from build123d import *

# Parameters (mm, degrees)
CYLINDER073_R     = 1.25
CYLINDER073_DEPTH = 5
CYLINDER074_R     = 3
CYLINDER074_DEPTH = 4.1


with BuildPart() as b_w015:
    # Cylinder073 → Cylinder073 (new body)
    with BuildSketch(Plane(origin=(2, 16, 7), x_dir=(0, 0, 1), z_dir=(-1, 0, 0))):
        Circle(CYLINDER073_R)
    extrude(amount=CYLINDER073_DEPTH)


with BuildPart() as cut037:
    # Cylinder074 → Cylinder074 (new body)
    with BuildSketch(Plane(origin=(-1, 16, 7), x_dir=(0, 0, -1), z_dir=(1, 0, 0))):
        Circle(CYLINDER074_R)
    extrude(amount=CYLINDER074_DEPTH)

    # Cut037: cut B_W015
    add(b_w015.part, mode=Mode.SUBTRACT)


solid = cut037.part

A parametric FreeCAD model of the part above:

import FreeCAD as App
import Part
import Sketcher
from FreeCAD import Vector

doc = App.newDocument("Part")
body = doc.addObject("PartDesign::Body", "Body")

sketch1 = body.newObject("Sketcher::SketchObject", "Sketch")
sketch1.AttachmentSupport = (doc.getObject("YZ_Plane"), [""])
sketch1.MapMode = "FlatFace"
sketch1.AttachmentOffset = App.Placement(Vector(0, 0, 2), App.Rotation())
sketch1.addGeometry(Part.Circle(Vector(16, 7, 0), Vector(0, 0, 1), 1.25), False)
sketch1.addConstraint([
    Sketcher.Constraint("Diameter", 0, 2.5),
    Sketcher.Constraint("DistanceX", -1, 1, 0, 3, 16.0),
    Sketcher.Constraint("DistanceY", -1, 1, 0, 3, 7.0),
])
pad1 = body.newObject("PartDesign::Pad", "Pad")
pad1.Profile = sketch1
pad1.Length = 5
pad1.Reversed = True
body2 = doc.addObject("PartDesign::Body", "Body001")

sketch2 = body2.newObject("Sketcher::SketchObject", "Sketch001")
sketch2.AttachmentSupport = (doc.getObject("YZ_Plane001"), [""])
sketch2.MapMode = "FlatFace"
sketch2.AttachmentOffset = App.Placement(Vector(0, 0, -1), App.Rotation())
sketch2.addGeometry(Part.Circle(Vector(16, 7, 0), Vector(0, 0, 1), 3), False)
sketch2.addConstraint([
    Sketcher.Constraint("Diameter", 0, 6.0),
    Sketcher.Constraint("DistanceX", -1, 1, 0, 3, 16.0),
    Sketcher.Constraint("DistanceY", -1, 1, 0, 3, 7.0),
])
pad2 = body2.newObject("PartDesign::Pad", "Pad001")
pad2.Profile = sketch2
pad2.Length = 4.1
doc.recompute()

boolean = body2.newObject("PartDesign::Boolean", "Boolean")
boolean.Type = "Cut"
boolean.addObjects([body])

doc.recompute()
